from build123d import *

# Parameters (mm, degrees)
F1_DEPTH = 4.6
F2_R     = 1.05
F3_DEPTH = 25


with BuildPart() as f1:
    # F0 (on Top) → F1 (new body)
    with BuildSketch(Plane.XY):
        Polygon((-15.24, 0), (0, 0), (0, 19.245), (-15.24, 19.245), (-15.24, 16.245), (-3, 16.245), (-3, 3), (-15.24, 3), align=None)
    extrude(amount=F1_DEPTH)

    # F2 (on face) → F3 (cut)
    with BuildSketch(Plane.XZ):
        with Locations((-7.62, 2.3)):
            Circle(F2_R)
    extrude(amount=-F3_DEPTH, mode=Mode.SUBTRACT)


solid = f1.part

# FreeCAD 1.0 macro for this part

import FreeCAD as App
import Part
import Sketcher
from FreeCAD import Vector

doc = App.newDocument("Part")
body = doc.addObject("PartDesign::Body", "Body")

# Sketch on XY plane
sketch1 = doc.addObject("Sketcher::SketchObject", "Sketch")
body.addObject(sketch1)
sketch1.AttachmentSupport = (doc.XY_Plane, [""])
sketch1.MapMode = "FlatFace"
sketch1.addGeometry(Part.LineSegment(Vector(-15.2, 0, 0), Vector(0, 0, 0)), False)
sketch1.addGeometry(Part.LineSegment(Vector(0, 0, 0), Vector(0, 19.2, 0)), False)
sketch1.addGeometry(Part.LineSegment(Vector(0, 19.2, 0), Vector(-15.2, 19.2, 0)), False)
sketch1.addGeometry(Part.LineSegment(Vector(-15.2, 19.2, 0), Vector(-15.2, 16.2, 0)), False)
sketch1.addGeometry(Part.LineSegment(Vector(-15.2, 16.2, 0), Vector(-3, 16.2, 0)), False)
sketch1.addGeometry(Part.LineSegment(Vector(-3, 16.2, 0), Vector(-3, 3, 0)), False)
sketch1.addGeometry(Part.LineSegment(Vector(-3, 3, 0), Vector(-15.2, 3, 0)), False)
sketch1.addGeometry(Part.LineSegment(Vector(-15.2, 3, 0), Vector(-15.2, 0, 0)), False)
sketch1.addConstraint(Sketcher.Constraint("Coincident", 0, 2, 1, 1))
sketch1.addConstraint(Sketcher.Constraint("Coincident", 1, 2, 2, 1))
sketch1.addConstraint(Sketcher.Constraint("Coincident", 2, 2, 3, 1))
sketch1.addConstraint(Sketcher.Constraint("Coincident", 3, 2, 4, 1))
sketch1.addConstraint(Sketcher.Constraint("Coincident", 4, 2, 5, 1))
sketch1.addConstraint(Sketcher.Constraint("Coincident", 5, 2, 6, 1))
sketch1.addConstraint(Sketcher.Constraint("Coincident", 6, 2, 7, 1))
sketch1.addConstraint(Sketcher.Constraint("Coincident", 7, 2, 0, 1))
sketch1.addConstraint(Sketcher.Constraint("Horizontal", 0))
sketch1.addConstraint(Sketcher.Constraint("Vertical", 1))
sketch1.addConstraint(Sketcher.Constraint("Horizontal", 2))
sketch1.addConstraint(Sketcher.Constraint("Vertical", 3))
sketch1.addConstraint(Sketcher.Constraint("Horizontal", 4))
sketch1.addConstraint(Sketcher.Constraint("Vertical", 5))
sketch1.addConstraint(Sketcher.Constraint("Horizontal", 6))
sketch1.addConstraint(Sketcher.Constraint("Vertical", 7))
sketch1.addConstraint(Sketcher.Constraint("Coincident", 0, 2, -1, 1))
sketch1.addConstraint(Sketcher.Constraint("Vertical", 3, 2, 6, 2))
sketch1.addConstraint(Sketcher.Constraint("Equal", 3, 7))
sketch1.addConstraint(Sketcher.Constraint("DistanceY", 3, 2, 3, 1, 3.0))
sketch1.addConstraint(Sketcher.Constraint("DistanceX", 4, 2, -1, 1, 3.0))
sketch1.addConstraint(Sketcher.Constraint("DistanceX", 0, 1, 0, 2, 15.24))
sketch1.addConstraint(Sketcher.Constraint("DistanceY", 1, 1, 1, 2, 19.245))
pad1 = doc.addObject("PartDesign::Pad", "Pad")
body.addObject(pad1)
pad1.Profile = sketch1
pad1.Length = 4.6

# Sketch on XZ plane
sketch2 = doc.addObject("Sketcher::SketchObject", "Sketch001")
body.addObject(sketch2)
sketch2.AttachmentSupport = (doc.XZ_Plane, [""])
sketch2.MapMode = "FlatFace"
sketch2.addGeometry(Part.Circle(Vector(-7.6, 2.3, 0), Vector(0, 0, 1), 1.1), False)
sketch2.addConstraint(Sketcher.Constraint("Diameter", 0, 2.1))
sketch2.addConstraint(Sketcher.Constraint("DistanceY", -1, 1, 0, 3, 2.3))
sketch2.addConstraint(Sketcher.Constraint("DistanceX", 0, 3, -1, 1, 7.62))
pocket1 = doc.addObject("PartDesign::Pocket", "Pocket")
body.addObject(pocket1)
pocket1.Profile = sketch2
pocket1.Length = 25

doc.recompute()
